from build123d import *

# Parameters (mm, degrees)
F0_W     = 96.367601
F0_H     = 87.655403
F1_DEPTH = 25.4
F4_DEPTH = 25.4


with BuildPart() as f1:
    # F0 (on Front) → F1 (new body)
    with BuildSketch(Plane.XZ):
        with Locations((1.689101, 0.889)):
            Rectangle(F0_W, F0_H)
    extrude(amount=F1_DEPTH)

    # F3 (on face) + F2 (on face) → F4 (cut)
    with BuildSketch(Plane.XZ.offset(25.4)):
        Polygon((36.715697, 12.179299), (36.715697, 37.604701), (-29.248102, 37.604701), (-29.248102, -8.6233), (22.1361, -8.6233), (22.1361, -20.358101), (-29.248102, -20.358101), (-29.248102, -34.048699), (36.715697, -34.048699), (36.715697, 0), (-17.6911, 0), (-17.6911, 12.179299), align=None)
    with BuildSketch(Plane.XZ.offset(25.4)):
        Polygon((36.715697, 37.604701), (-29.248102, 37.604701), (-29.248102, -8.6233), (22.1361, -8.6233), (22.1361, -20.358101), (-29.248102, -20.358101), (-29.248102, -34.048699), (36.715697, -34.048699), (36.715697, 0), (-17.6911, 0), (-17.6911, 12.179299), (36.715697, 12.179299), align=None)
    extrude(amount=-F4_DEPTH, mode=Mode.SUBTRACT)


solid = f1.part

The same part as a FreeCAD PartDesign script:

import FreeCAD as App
import Part
import Sketcher
Q = App.Units.Quantity


def add_polygon(sketch, points):
    """Adds a closed chain of lines whose ends are joined by coincident constraints."""
    first, n = sketch.GeometryCount, len(points)
    for a, b in zip(points, points[1:] + points[:1]):
        sketch.addGeometry(Part.LineSegment(App.Vector(*a, 0), App.Vector(*b, 0)), False)
    for i in range(n):
        sketch.addConstraint(Sketcher.Constraint("Coincident", first + i, 2, first + (i + 1) % n, 1))

doc = App.newDocument("Part")
params = doc.addObject("Spreadsheet::Sheet", "Params")
for row, (alias, value) in enumerate([
    ("sketch1_width", "3.794 in"),
    ("sketch1_height", "3.4510001 in"),
    ("pad1_length", "1 in"),
    ("sketch2_height", "1.82 in"),
    ("sketch2_width", "2.597 in"),
    ("sketch2_width2", "2.0230001 in"),
    ("sketch2_width3", "2.1419999 in"),
    ("sketch2_height2", "1.0010001 in"),
    ("pocket1_length", "1 in"),
], start=1):
    params.set(f"A{row}", alias)
    params.set(f"B{row}", "=" + value)
    params.setAlias(f"B{row}", alias)

body = doc.addObject("PartDesign::Body", "Body")

sketch1 = doc.addObject("Sketcher::SketchObject", "Sketch")
body.addObject(sketch1)
sketch1.AttachmentSupport = (doc.XZ_Plane, [""])
sketch1.MapMode = "FlatFace"
add_polygon(sketch1, [(-46.4947, 44.716701), (-46.4947, -42.938702), (49.872901, -42.938702), (49.872901, 44.716701)])
sketch1.addConstraint([
    Sketcher.Constraint("Vertical", 0),
    Sketcher.Constraint("Horizontal", 1),
    Sketcher.Constraint("Vertical", 2),
    Sketcher.Constraint("Horizontal", 3),
    Sketcher.Constraint("DistanceX", 1, 1, 1, 2, Q("3.794 in")),
    Sketcher.Constraint("DistanceY", 0, 2, 0, 1, Q("3.4510001 in")),
    Sketcher.Constraint("DistanceX", 0, 2, -1, 1, Q("1.8305 in")),
    Sketcher.Constraint("DistanceY", 0, 2, -1, 1, Q("1.6905001 in")),
])
sketch1.setExpression("Constraints[8]", "Params.sketch1_width")
sketch1.setExpression("Constraints[9]", "Params.sketch1_height")
pad1 = doc.addObject("PartDesign::Pad", "Pad")
body.addObject(pad1)
pad1.Profile = sketch1
pad1.setExpression("Length", "Params.pad1_length")

sketch2 = doc.addObject("Sketcher::SketchObject", "Sketch001")
body.addObject(sketch2)
sketch2.AttachmentSupport = (doc.XZ_Plane, [""])
sketch2.MapMode = "FlatFace"
sketch2.AttachmentOffset = App.Placement(App.Vector(0, 0, 1 * 25.4), App.Rotation())
add_polygon(sketch2, [(36.715697, 12.179299), (36.715697, 37.604701), (-29.248102, 37.604701), (-29.248102, -8.6233), (22.1361, -8.6233), (22.1361, -20.358101), (-29.248102, -20.358101), (-29.248102, -34.048699), (36.715697, -34.048699), (36.715697, 0), (-17.6911, 0), (-17.6911, 12.179299)])
sketch2.addConstraint([
    Sketcher.Constraint("Vertical", 0),
    Sketcher.Constraint("Horizontal", 1),
    Sketcher.Constraint("Vertical", 2),
    Sketcher.Constraint("Horizontal", 3),
    Sketcher.Constraint("Vertical", 4),
    Sketcher.Constraint("Horizontal", 5),
    Sketcher.Constraint("Vertical", 6),
    Sketcher.Constraint("Horizontal", 7),
    Sketcher.Constraint("Vertical", 8),
    Sketcher.Constraint("Horizontal", 9),
    Sketcher.Constraint("Vertical", 10),
    Sketcher.Constraint("Horizontal", 11),
    Sketcher.Constraint("PointOnObject", 8, 2, -1),
    Sketcher.Constraint("Vertical", 2, 2, 5, 2),
    Sketcher.Constraint("Vertical", 0, 2, 7, 2),
    Sketcher.Constraint("DistanceY", 2, 2, 2, 1, Q("1.82 in")),
    Sketcher.Constraint("DistanceX", 1, 2, 1, 1, Q("2.597 in")),
    Sketcher.Constraint("DistanceX", 3, 1, 3, 2, Q("2.0230001 in")),
    Sketcher.Constraint("DistanceX", 9, 2, 9, 1, Q("2.1419999 in")),
    Sketcher.Constraint("DistanceY", 0, 1, 0, 2, Q("1.0010001 in")),
    Sketcher.Constraint("DistanceY", 4, 2, 4, 1, Q("0.462 in")),
    Sketcher.Constraint("DistanceY", 6, 2, 6, 1, Q("0.5389999 in")),
    Sketcher.Constraint("DistanceY", 8, 1, 8, 2, Q("1.3405 in")),
    Sketcher.Constraint("DistanceX", -1, 1, 0, 2, Q("1.4454999 in")),
])
sketch2.setExpression("Constraints[27]", "Params.sketch2_height")
sketch2.setExpression("Constraints[28]", "Params.sketch2_width")
sketch2.setExpression("Constraints[29]", "Params.sketch2_width2")
sketch2.setExpression("Constraints[30]", "Params.sketch2_width3")
sketch2.setExpression("Constraints[31]", "Params.sketch2_height2")
pocket1 = doc.addObject("PartDesign::Pocket", "Pocket")
body.addObject(pocket1)
pocket1.Profile = sketch2
pocket1.setExpression("Length", "Params.pocket1_length")

doc.recompute()
